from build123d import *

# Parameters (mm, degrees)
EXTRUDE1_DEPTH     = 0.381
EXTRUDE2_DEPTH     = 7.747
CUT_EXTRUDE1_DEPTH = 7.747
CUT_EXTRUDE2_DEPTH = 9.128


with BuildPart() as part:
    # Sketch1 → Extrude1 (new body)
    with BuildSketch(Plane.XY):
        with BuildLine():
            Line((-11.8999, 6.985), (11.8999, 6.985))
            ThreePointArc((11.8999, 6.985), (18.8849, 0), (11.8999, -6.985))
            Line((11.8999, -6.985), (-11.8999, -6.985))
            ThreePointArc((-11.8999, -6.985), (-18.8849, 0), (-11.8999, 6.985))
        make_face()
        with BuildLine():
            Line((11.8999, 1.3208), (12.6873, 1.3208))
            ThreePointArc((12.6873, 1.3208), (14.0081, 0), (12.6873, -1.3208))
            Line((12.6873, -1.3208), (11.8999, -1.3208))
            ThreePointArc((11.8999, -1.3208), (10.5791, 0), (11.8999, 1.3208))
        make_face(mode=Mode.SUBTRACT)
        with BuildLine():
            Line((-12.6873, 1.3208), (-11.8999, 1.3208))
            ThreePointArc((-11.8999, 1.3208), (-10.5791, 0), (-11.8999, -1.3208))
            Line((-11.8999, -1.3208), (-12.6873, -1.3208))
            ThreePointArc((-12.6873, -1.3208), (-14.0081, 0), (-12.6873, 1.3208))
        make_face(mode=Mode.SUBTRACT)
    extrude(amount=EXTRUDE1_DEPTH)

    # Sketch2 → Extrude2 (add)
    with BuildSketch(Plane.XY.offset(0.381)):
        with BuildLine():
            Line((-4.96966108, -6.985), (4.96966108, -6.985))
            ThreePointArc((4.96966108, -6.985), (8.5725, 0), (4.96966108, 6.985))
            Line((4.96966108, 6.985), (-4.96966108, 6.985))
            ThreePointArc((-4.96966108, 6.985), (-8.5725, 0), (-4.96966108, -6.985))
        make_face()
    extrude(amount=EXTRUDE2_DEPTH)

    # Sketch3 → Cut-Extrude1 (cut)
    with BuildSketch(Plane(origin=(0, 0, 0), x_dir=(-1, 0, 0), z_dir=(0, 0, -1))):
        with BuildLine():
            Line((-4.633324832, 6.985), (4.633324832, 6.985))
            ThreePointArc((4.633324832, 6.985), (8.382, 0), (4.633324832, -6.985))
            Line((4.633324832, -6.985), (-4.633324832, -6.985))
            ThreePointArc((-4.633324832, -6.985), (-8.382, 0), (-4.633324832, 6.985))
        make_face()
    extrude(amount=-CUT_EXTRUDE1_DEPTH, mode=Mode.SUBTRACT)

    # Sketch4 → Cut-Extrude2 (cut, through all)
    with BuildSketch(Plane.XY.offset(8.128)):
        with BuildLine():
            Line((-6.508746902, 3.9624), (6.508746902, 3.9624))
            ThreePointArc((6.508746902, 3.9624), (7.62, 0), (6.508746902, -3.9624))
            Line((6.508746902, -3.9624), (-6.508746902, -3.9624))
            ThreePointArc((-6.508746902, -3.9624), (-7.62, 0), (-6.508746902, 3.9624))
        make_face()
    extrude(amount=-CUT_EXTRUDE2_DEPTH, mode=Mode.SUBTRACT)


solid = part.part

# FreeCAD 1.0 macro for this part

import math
import FreeCAD as App
import Part
import Sketcher
from FreeCAD import Vector
Q = App.Units.Quantity

doc = App.newDocument("Part")
params = doc.addObject("Spreadsheet::Sheet", "Params")
for row, (alias, value) in enumerate([
    ("sketch1_radius", "0.275 in"),
    ("sketch1_radius2", "0.052 in"),
    ("sketch1_width", "0.937 in"),
    ("sketch1_width2", "0.031 in"),
    ("pad1_length", "0.015 in"),
    ("pad2_length", "0.305 in"),
    ("sketch3_radius", "0.33 in"),
    ("pocket1_length", "0.305 in"),
    ("sketch4_radius", "0.3 in"),
], start=1):
    params.set(f"A{row}", alias)
    params.set(f"B{row}", "=" + value)
    params.setAlias(f"B{row}", alias)

body = doc.addObject("PartDesign::Body", "Body")

# Sketch on XY plane
sketch1 = body.newObject("Sketcher::SketchObject", "Sketch")
sketch1.AttachmentSupport = (doc.getObject("XY_Plane"), [""])
sketch1.MapMode = "FlatFace"
sketch1.addGeometry(Part.LineSegment(Vector(11.9, 7, 0), Vector(-11.9, 7, 0)), False)
sketch1.addGeometry(Part.ArcOfCircle(Part.Circle(Vector(-11.9, 0, 0), Vector(0, 0, 1), 7), math.radians(90), math.radians(270)), False)
sketch1.addGeometry(Part.LineSegment(Vector(-11.9, -7, 0), Vector(11.9, -7, 0)), False)
sketch1.addGeometry(Part.ArcOfCircle(Part.Circle(Vector(11.9, 0, 0), Vector(0, 0, 1), 7), math.radians(-90), math.radians(90)), False)
sketch1.addGeometry(Part.LineSegment(Vector(11.9, 1.3, 0), Vector(12.7, 1.3, 0)), False)
sketch1.addGeometry(Part.ArcOfCircle(Part.Circle(Vector(12.7, 0, 0), Vector(0, 0, 1), 1.3), math.radians(-90), math.radians(90)), False)
sketch1.addGeometry(Part.LineSegment(Vector(12.7, -1.3, 0), Vector(11.9, -1.3, 0)), False)
sketch1.addGeometry(Part.ArcOfCircle(Part.Circle(Vector(11.9, 0, 0), Vector(0, 0, 1), 1.3), math.radians(90), math.radians(270)), False)
sketch1.addGeometry(Part.LineSegment(Vector(-12.7, 1.3, 0), Vector(-11.9, 1.3, 0)), False)
sketch1.addGeometry(Part.ArcOfCircle(Part.Circle(Vector(-11.9, 0, 0), Vector(0, 0, 1), 1.3), math.radians(-90), math.radians(90)), False)
sketch1.addGeometry(Part.LineSegment(Vector(-11.9, -1.3, 0), Vector(-12.7, -1.3, 0)), False)
sketch1.addGeometry(Part.ArcOfCircle(Part.Circle(Vector(-12.7, 0, 0), Vector(0, 0, 1), 1.3), math.radians(90), math.radians(270)), False)
sketch1.addConstraint(Sketcher.Constraint("Tangent", 0, 2, 1, 1))
sketch1.addConstraint(Sketcher.Constraint("Tangent", 1, 2, 2, 1))
sketch1.addConstraint(Sketcher.Constraint("Tangent", 2, 2, 3, 1))
sketch1.addConstraint(Sketcher.Constraint("Tangent", 3, 2, 0, 1))
sketch1.addConstraint(Sketcher.Constraint("Tangent", 4, 2, 5, 2))
sketch1.addConstraint(Sketcher.Constraint("Tangent", 5, 1, 6, 1))
sketch1.addConstraint(Sketcher.Constraint("Tangent", 6, 2, 7, 2))
sketch1.addConstraint(Sketcher.Constraint("Tangent", 7, 1, 4, 1))
sketch1.addConstraint(Sketcher.Constraint("Tangent", 8, 2, 9, 2))
sketch1.addConstraint(Sketcher.Constraint("Tangent", 9, 1, 10, 1))
sketch1.addConstraint(Sketcher.Constraint("Tangent", 10, 2, 11, 2))
sketch1.addConstraint(Sketcher.Constraint("Tangent", 11, 1, 8, 1))
sketch1.addConstraint(Sketcher.Constraint("Horizontal", 0))
sketch1.addConstraint(Sketcher.Constraint("Horizontal", 2))
sketch1.addConstraint(Sketcher.Constraint("Horizontal", 4))
sketch1.addConstraint(Sketcher.Constraint("Horizontal", 6))
sketch1.addConstraint(Sketcher.Constraint("Horizontal", 8))
sketch1.addConstraint(Sketcher.Constraint("Horizontal", 10))
sketch1.addConstraint(Sketcher.Constraint("Coincident", 7, 3, 3, 3))
sketch1.addConstraint(Sketcher.Constraint("Coincident", 9, 3, 1, 3))
sketch1.addConstraint(Sketcher.Constraint("Equal", 7, 9))
sketch1.addConstraint(Sketcher.Constraint("Symmetric", 1, 3, 3, 3, -1, 1))
sketch1.addConstraint(Sketcher.Constraint("Equal", 6, 8))
sketch1.addConstraint(Sketcher.Constraint("Radius", 1, Q("0.275 in")))
sketch1.addConstraint(Sketcher.Constraint("Radius", 5, Q("0.052 in")))
sketch1.addConstraint(Sketcher.Constraint("DistanceX", 0, 2, 0, 1, Q("0.937 in")))
sketch1.addConstraint(Sketcher.Constraint("DistanceX", 4, 1, 4, 2, Q("0.031 in")))
sketch1.setExpression("Constraints[23]", "Params.sketch1_radius")
sketch1.setExpression("Constraints[24]", "Params.sketch1_radius2")
sketch1.setExpression("Constraints[25]", "Params.sketch1_width")
sketch1.setExpression("Constraints[26]", "Params.sketch1_width2")
pad1 = body.newObject("PartDesign::Pad", "Pad")
pad1.Profile = sketch1
pad1.setExpression("Length", "Params.pad1_length")

# Sketch on XY plane
sketch2 = body.newObject("Sketcher::SketchObject", "Sketch001")
sketch2.AttachmentSupport = (doc.getObject("XY_Plane"), [""])
sketch2.MapMode = "FlatFace"
sketch2.AttachmentOffset = App.Placement(Vector(0, 0, 0.015 * 25.4), App.Rotation())
sketch2.addGeometry(Part.LineSegment(Vector(-5, -7, 0), Vector(5, -7, 0)), False)
sketch2.addGeometry(Part.ArcOfCircle(Part.Circle(Vector(0, 0, 0), Vector(0, 0, 1), 9), math.radians(-55), math.radians(55)), False)
sketch2.addGeometry(Part.LineSegment(Vector(5, 7, 0), Vector(-5, 7, 0)), False)
sketch2.addGeometry(Part.ArcOfCircle(Part.Circle(Vector(0, 0, 0), Vector(0, 0, 1), 9), math.radians(125), math.radians(235)), False)
sketch2.addConstraint(Sketcher.Constraint("Coincident", 0, 2, 1, 1))
sketch2.addConstraint(Sketcher.Constraint("Coincident", 1, 2, 2, 1))
sketch2.addConstraint(Sketcher.Constraint("Coincident", 2, 2, 3, 1))
sketch2.addConstraint(Sketcher.Constraint("Coincident", 3, 2, 0, 1))
sketch2.addConstraint(Sketcher.Constraint("Horizontal", 0))
sketch2.addConstraint(Sketcher.Constraint("Horizontal", 2))
sketch2.addConstraint(Sketcher.Constraint("Coincident", 1, 3, -1, 1))
sketch2.addConstraint(Sketcher.Constraint("Coincident", 3, 3, -1, 1))
sketch2.addConstraint(Sketcher.Constraint("Equal", 1, 3))
sketch2.addConstraint(Sketcher.Constraint("Vertical", 0, 2, 1, 2))
sketch2.addConstraint(Sketcher.Constraint("Radius", 1, Q("0.3375 in")))
sketch2.addConstraint(Sketcher.Constraint("DistanceY", 0, 2, 1, 2, Q("0.55 in")))
pad2 = body.newObject("PartDesign::Pad", "Pad001")
pad2.Profile = sketch2
pad2.setExpression("Length", "Params.pad2_length")

# Sketch on XY plane
sketch3 = body.newObject("Sketcher::SketchObject", "Sketch002")
sketch3.AttachmentSupport = (doc.getObject("XY_Plane"), [""])
sketch3.MapMode = "FlatFace"
sketch3.addGeometry(Part.LineSegment(Vector(-5, 7, 0), Vector(5, 7, 0)), False)
sketch3.addGeometry(Part.ArcOfCircle(Part.Circle(Vector(0, 0, 0), Vector(0, 0, 1), 8), math.radians(-56), math.radians(56)), False)
sketch3.addGeometry(Part.LineSegment(Vector(5, -7, 0), Vector(-5, -7, 0)), False)
sketch3.addGeometry(Part.ArcOfCircle(Part.Circle(Vector(0, 0, 0), Vector(0, 0, 1), 8), math.radians(124), math.radians(236)), False)
sketch3.addConstraint(Sketcher.Constraint("Coincident", 0, 2, 1, 2))
sketch3.addConstraint(Sketcher.Constraint("Coincident", 1, 1, 2, 1))
sketch3.addConstraint(Sketcher.Constraint("Coincident", 2, 2, 3, 2))
sketch3.addConstraint(Sketcher.Constraint("Coincident", 3, 1, 0, 1))
sketch3.addConstraint(Sketcher.Constraint("Horizontal", 0))
sketch3.addConstraint(Sketcher.Constraint("Horizontal", 2))
sketch3.addConstraint(Sketcher.Constraint("Coincident", 1, 3, -1, 1))
sketch3.addConstraint(Sketcher.Constraint("Coincident", 3, 3, -1, 1))
sketch3.addConstraint(Sketcher.Constraint("Equal", 1, 3))
sketch3.addConstraint(Sketcher.Constraint("Vertical", 0, 2, 1, 1))
sketch3.addConstraint(Sketcher.Constraint("Radius", 1, Q("0.33 in")))
sketch3.addConstraint(Sketcher.Constraint("DistanceY", 1, 1, 0, 2, Q("0.55 in")))
sketch3.setExpression("Constraints[10]", "Params.sketch3_radius")
pocket1 = body.newObject("PartDesign::Pocket", "Pocket")
pocket1.Profile = sketch3
pocket1.setExpression("Length", "Params.pocket1_length")
pocket1.Reversed = True

# Sketch on XY plane
sketch4 = body.newObject("Sketcher::SketchObject", "Sketch003")
sketch4.AttachmentSupport = (doc.getObject("XY_Plane"), [""])
sketch4.MapMode = "FlatFace"
sketch4.AttachmentOffset = App.Placement(Vector(0, 0, 0.32 * 25.4), App.Rotation())
sketch4.addGeometry(Part.LineSegment(Vector(7, 4, 0), Vector(-7, 4, 0)), False)
sketch4.addGeometry(Part.ArcOfCircle(Part.Circle(Vector(0, 0, 0), Vector(0, 0, 1), 8), math.radians(149), math.radians(211)), False)
sketch4.addGeometry(Part.LineSegment(Vector(-7, -4, 0), Vector(7, -4, 0)), False)
sketch4.addGeometry(Part.ArcOfCircle(Part.Circle(Vector(0, 0, 0), Vector(0, 0, 1), 8), math.radians(-31), math.radians(31)), False)
sketch4.addConstraint(Sketcher.Constraint("Coincident", 0, 2, 1, 1))
sketch4.addConstraint(Sketcher.Constraint("Coincident", 1, 2, 2, 1))
sketch4.addConstraint(Sketcher.Constraint("Coincident", 2, 2, 3, 1))
sketch4.addConstraint(Sketcher.Constraint("Coincident", 3, 2, 0, 1))
sketch4.addConstraint(Sketcher.Constraint("Horizontal", 0))
sketch4.addConstraint(Sketcher.Constraint("Horizontal", 2))
sketch4.addConstraint(Sketcher.Constraint("Coincident", 1, 3, -1, 1))
sketch4.addConstraint(Sketcher.Constraint("Coincident", 3, 3, -1, 1))
sketch4.addConstraint(Sketcher.Constraint("Equal", 1, 3))
sketch4.addConstraint(Sketcher.Constraint("Vertical", 0, 2, 1, 2))
sketch4.addConstraint(Sketcher.Constraint("Radius", 1, Q("0.3 in")))
sketch4.addConstraint(Sketcher.Constraint("DistanceY", -1, 1, 0, 2, Q("0.156 in")))
sketch4.setExpression("Constraints[10]", "Params.sketch4_radius")
pocket2 = body.newObject("PartDesign::Pocket", "Pocket001")
pocket2.Profile = sketch4
pocket2.Type = "ThroughAll"

doc.recompute()
